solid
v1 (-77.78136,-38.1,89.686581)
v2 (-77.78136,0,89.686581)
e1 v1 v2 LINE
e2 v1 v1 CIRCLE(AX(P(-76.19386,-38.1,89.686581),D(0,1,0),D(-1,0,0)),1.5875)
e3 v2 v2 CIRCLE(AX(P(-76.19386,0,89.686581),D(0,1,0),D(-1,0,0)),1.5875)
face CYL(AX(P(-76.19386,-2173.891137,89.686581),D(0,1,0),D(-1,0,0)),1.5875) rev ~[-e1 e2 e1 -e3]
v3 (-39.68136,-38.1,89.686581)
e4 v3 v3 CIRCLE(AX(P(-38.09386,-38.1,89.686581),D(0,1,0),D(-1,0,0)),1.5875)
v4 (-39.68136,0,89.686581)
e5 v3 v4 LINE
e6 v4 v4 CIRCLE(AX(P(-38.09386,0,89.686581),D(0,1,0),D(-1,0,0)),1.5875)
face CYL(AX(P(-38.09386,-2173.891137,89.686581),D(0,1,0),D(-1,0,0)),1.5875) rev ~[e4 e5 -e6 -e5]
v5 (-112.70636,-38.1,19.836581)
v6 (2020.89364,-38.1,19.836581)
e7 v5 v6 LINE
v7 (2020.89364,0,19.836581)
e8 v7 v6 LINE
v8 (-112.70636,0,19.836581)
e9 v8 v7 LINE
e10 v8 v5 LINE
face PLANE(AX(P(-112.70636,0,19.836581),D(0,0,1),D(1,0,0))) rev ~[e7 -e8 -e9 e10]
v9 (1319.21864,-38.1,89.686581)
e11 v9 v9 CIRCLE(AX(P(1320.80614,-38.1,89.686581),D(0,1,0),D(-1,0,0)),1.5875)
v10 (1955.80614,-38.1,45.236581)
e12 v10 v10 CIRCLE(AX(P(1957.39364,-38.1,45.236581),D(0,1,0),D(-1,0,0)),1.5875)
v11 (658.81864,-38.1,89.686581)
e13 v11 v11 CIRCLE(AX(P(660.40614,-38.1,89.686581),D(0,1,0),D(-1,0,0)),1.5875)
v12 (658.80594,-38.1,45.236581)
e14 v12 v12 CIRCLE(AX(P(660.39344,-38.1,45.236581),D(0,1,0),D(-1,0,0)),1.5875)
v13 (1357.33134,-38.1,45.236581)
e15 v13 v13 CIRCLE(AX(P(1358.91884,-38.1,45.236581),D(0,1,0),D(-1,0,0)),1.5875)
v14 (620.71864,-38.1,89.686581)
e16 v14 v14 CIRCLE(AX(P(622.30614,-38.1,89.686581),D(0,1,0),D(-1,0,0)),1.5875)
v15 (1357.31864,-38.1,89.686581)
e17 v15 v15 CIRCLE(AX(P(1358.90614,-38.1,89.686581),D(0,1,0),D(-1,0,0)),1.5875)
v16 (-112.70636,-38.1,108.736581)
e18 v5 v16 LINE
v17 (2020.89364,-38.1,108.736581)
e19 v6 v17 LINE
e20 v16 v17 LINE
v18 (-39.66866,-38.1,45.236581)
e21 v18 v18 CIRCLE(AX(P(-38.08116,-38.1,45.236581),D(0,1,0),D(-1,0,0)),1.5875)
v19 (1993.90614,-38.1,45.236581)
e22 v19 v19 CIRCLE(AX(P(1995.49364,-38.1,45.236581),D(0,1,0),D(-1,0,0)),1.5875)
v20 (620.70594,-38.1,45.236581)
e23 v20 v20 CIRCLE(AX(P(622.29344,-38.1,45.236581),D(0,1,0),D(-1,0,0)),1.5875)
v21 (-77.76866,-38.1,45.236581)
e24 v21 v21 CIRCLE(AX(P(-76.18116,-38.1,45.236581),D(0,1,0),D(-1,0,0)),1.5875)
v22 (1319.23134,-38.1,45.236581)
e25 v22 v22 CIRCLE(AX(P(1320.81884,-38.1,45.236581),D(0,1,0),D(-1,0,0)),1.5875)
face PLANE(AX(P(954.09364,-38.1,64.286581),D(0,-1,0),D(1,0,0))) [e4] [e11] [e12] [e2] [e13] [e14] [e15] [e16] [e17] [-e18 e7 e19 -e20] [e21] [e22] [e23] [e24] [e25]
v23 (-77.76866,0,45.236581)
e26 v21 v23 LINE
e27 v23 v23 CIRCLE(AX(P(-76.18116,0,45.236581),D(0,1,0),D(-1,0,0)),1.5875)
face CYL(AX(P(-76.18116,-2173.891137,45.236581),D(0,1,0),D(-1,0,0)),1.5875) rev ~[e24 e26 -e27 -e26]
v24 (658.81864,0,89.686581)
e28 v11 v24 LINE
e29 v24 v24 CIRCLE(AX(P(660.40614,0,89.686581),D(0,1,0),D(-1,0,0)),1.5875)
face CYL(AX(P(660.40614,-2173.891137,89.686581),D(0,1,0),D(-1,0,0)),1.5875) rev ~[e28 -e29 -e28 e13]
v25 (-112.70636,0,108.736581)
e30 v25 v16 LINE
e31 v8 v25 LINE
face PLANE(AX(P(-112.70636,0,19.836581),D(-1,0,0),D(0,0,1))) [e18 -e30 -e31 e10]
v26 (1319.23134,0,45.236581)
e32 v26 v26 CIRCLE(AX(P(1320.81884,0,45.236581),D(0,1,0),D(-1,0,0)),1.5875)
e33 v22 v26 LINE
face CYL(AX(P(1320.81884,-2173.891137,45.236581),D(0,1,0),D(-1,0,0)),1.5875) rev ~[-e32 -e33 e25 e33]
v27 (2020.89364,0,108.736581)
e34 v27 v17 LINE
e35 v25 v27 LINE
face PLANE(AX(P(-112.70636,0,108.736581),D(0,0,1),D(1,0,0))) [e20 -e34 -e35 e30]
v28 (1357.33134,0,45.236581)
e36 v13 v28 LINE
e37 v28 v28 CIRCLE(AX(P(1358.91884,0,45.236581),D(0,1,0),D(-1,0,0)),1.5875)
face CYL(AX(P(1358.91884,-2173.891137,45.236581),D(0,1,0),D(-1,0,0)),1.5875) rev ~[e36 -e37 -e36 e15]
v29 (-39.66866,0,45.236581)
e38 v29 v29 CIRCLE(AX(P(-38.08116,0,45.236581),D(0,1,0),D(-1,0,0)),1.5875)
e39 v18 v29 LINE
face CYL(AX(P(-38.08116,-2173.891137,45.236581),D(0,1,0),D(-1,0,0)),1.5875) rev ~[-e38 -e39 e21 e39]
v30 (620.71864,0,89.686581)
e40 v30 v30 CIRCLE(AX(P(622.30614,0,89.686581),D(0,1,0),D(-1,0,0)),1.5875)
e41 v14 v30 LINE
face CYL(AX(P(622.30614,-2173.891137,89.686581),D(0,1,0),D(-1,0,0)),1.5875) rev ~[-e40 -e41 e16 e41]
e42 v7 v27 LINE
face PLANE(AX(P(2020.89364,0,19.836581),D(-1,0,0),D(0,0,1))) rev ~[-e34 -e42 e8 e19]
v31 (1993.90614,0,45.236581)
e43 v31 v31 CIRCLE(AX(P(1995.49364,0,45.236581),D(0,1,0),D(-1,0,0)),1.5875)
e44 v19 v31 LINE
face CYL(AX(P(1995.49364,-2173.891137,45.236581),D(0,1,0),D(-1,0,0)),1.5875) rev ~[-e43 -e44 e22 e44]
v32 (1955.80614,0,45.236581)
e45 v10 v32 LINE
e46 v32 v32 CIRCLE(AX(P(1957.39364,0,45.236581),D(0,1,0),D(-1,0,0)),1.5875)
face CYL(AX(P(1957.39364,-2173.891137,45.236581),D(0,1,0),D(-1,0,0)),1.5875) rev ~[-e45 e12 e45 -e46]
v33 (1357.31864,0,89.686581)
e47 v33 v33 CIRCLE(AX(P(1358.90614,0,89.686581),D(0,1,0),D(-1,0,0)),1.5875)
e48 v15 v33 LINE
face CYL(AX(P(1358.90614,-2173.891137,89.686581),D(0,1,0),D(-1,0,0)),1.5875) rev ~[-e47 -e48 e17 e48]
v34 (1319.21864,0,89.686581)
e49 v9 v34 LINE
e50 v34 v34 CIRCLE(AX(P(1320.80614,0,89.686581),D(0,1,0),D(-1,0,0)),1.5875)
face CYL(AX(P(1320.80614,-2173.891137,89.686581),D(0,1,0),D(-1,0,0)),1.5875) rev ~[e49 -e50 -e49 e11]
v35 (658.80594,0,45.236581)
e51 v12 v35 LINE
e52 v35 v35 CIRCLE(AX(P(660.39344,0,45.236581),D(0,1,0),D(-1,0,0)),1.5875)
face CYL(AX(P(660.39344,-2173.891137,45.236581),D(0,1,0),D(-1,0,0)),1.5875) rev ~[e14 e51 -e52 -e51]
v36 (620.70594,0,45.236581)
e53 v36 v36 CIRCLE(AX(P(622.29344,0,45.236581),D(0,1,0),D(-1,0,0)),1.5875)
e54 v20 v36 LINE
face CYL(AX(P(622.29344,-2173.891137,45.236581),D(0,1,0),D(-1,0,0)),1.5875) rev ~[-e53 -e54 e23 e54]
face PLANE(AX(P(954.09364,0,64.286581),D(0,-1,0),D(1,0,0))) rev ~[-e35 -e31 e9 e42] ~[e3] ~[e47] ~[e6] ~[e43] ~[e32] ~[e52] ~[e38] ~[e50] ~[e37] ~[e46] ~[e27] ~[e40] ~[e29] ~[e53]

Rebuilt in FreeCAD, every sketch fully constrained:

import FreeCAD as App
import Part
import Sketcher
from FreeCAD import Vector
Q = App.Units.Quantity


def add_polygon(sketch, points):
    """Adds a closed chain of lines whose ends are joined by coincident constraints."""
    first, n = sketch.GeometryCount, len(points)
    for a, b in zip(points, points[1:] + points[:1]):
        sketch.addGeometry(Part.LineSegment(App.Vector(*a, 0), App.Vector(*b, 0)), False)
    for i in range(n):
        sketch.addConstraint(Sketcher.Constraint("Coincident", first + i, 2, first + (i + 1) % n, 1))

doc = App.newDocument("Part")
body = doc.addObject("PartDesign::Body", "Body")

# Sketch on XZ plane
sketch1 = body.newObject("Sketcher::SketchObject", "Sketch")
sketch1.AttachmentSupport = (doc.getObject("XZ_Plane"), [""])
sketch1.MapMode = "FlatFace"
add_polygon(sketch1, [(-113, 109), (-113, 20), (2021, 20), (2021, 109)])  # lines 0-3
sketch1.addConstraint(Sketcher.Constraint("Vertical", 0))
sketch1.addConstraint(Sketcher.Constraint("Horizontal", 1))
sketch1.addConstraint(Sketcher.Constraint("Vertical", 2))
sketch1.addConstraint(Sketcher.Constraint("Horizontal", 3))
sketch1.addConstraint(Sketcher.Constraint("DistanceX", 1, 1, 1, 2, Q("84 in")))
sketch1.addConstraint(Sketcher.Constraint("DistanceY", 0, 2, 0, 1, Q("3.5 in")))
sketch1.addConstraint(Sketcher.Constraint("DistanceX", 0, 2, -1, 1, Q("112.70636 mm")))
sketch1.addConstraint(Sketcher.Constraint("DistanceY", -1, 1, 0, 2, Q("19.836581 mm")))
pad1 = body.newObject("PartDesign::Pad", "Pad")
pad1.Profile = sketch1
pad1.Length = Q("1.5 in")

# Sketch on XZ plane
sketch2 = body.newObject("Sketcher::SketchObject", "Sketch001")
sketch2.AttachmentSupport = (doc.getObject("XZ_Plane"), [""])
sketch2.MapMode = "FlatFace"
sketch2.AttachmentOffset = App.Placement(Vector(0, 0, 1.5 * 25.4), App.Rotation())
sketch2.addGeometry(Part.Circle(Vector(1995.5, 45.2, 0), Vector(0, 0, 1), 1.6), False)
sketch2.addGeometry(Part.Circle(Vector(1957.4, 45.2, 0), Vector(0, 0, 1), 1.6), False)
sketch2.addGeometry(Part.Circle(Vector(1358.9, 89.7, 0), Vector(0, 0, 1), 1.6), False)
sketch2.addGeometry(Part.Circle(Vector(1358.9, 45.2, 0), Vector(0, 0, 1), 1.6), False)
sketch2.addGeometry(Part.Circle(Vector(1320.8, 45.2, 0), Vector(0, 0, 1), 1.6), False)
sketch2.addGeometry(Part.Circle(Vector(1320.8, 89.7, 0), Vector(0, 0, 1), 1.6), False)
sketch2.addGeometry(Part.Circle(Vector(660.4, 45.2, 0), Vector(0, 0, 1), 1.6), False)
sketch2.addGeometry(Part.Circle(Vector(622.3, 45.2, 0), Vector(0, 0, 1), 1.6), False)
sketch2.addGeometry(Part.Circle(Vector(622.3, 89.7, 0), Vector(0, 0, 1), 1.6), False)
sketch2.addGeometry(Part.Circle(Vector(660.4, 89.7, 0), Vector(0, 0, 1), 1.6), False)
sketch2.addGeometry(Part.Circle(Vector(-76.2, 45.2, 0), Vector(0, 0, 1), 1.6), False)
sketch2.addGeometry(Part.Circle(Vector(-38.1, 45.2, 0), Vector(0, 0, 1), 1.6), False)
sketch2.addGeometry(Part.Circle(Vector(-38.1, 89.7, 0), Vector(0, 0, 1), 1.6), False)
sketch2.addGeometry(Part.Circle(Vector(-76.2, 89.7, 0), Vector(0, 0, 1), 1.6), False)
sketch2.addConstraint(Sketcher.Constraint("Equal", 0, 1))
sketch2.addConstraint(Sketcher.Constraint("Equal", 1, 2))
sketch2.addConstraint(Sketcher.Constraint("Equal", 2, 3))
sketch2.addConstraint(Sketcher.Constraint("Equal", 3, 4))
sketch2.addConstraint(Sketcher.Constraint("Equal", 4, 5))
sketch2.addConstraint(Sketcher.Constraint("Equal", 5, 6))
sketch2.addConstraint(Sketcher.Constraint("Equal", 6, 7))
sketch2.addConstraint(Sketcher.Constraint("Equal", 7, 8))
sketch2.addConstraint(Sketcher.Constraint("Equal", 8, 9))
sketch2.addConstraint(Sketcher.Constraint("Equal", 9, 10))
sketch2.addConstraint(Sketcher.Constraint("Equal", 10, 11))
sketch2.addConstraint(Sketcher.Constraint("Equal", 11, 12))
sketch2.addConstraint(Sketcher.Constraint("Equal", 12, 13))
sketch2.addConstraint(Sketcher.Constraint("Horizontal", 0, 3, 1, 3))
sketch2.addConstraint(Sketcher.Constraint("Horizontal", 1, 3, 3, 3))
sketch2.addConstraint(Sketcher.Constraint("Horizontal", 3, 3, 4, 3))
sketch2.addConstraint(Sketcher.Constraint("Horizontal", 2, 3, 5, 3))
sketch2.addConstraint(Sketcher.Constraint("Horizontal", 4, 3, 6, 3))
sketch2.addConstraint(Sketcher.Constraint("Horizontal", 6, 3, 7, 3))
sketch2.addConstraint(Sketcher.Constraint("Horizontal", 5, 3, 8, 3))
sketch2.addConstraint(Sketcher.Constraint("Horizontal", 8, 3, 9, 3))
sketch2.addConstraint(Sketcher.Constraint("Horizontal", 7, 3, 10, 3))
sketch2.addConstraint(Sketcher.Constraint("Horizontal", 10, 3, 11, 3))
sketch2.addConstraint(Sketcher.Constraint("Horizontal", 9, 3, 12, 3))
sketch2.addConstraint(Sketcher.Constraint("Horizontal", 12, 3, 13, 3))
sketch2.addConstraint(Sketcher.Constraint("Diameter", 0, Q("0.125 in")))
sketch2.addConstraint(Sketcher.Constraint("DistanceX", 8, 3, 2, 3, Q("29 in")))
sketch2.addConstraint(Sketcher.Constraint("DistanceX", 9, 3, 5, 3, Q("26 in")))
sketch2.addConstraint(Sketcher.Constraint("DistanceX", 10, 3, 4, 3, Q("55 in")))
sketch2.addConstraint(Sketcher.Constraint("DistanceX", 12, 3, 8, 3, Q("26 in")))
sketch2.addConstraint(Sketcher.Constraint("DistanceX", 1, 3, 0, 3, Q("1.5 in")))
sketch2.addConstraint(Sketcher.Constraint("DistanceX", 4, 3, 3, 3, Q("1.5 in")))
sketch2.addConstraint(Sketcher.Constraint("DistanceX", 5, 3, 2, 3, Q("1.5 in")))
sketch2.addConstraint(Sketcher.Constraint("DistanceX", 7, 3, 6, 3, Q("1.5 in")))
sketch2.addConstraint(Sketcher.Constraint("DistanceX", 10, 3, 11, 3, Q("1.5 in")))
sketch2.addConstraint(Sketcher.Constraint("DistanceX", 13, 3, 12, 3, Q("1.5 in")))
sketch2.addConstraint(Sketcher.Constraint("DistanceY", 1, 3, 2, 3, Q("1.75 in")))
sketch2.addConstraint(Sketcher.Constraint("DistanceX", 2, 3, 1, 3, Q("23.5625 in")))
sketch2.addConstraint(Sketcher.Constraint("DistanceX", 3, 3, 1, 3, Q("23.562 in")))
sketch2.addConstraint(Sketcher.Constraint("DistanceX", 6, 3, 4, 3, Q("26.001 in")))
sketch2.addConstraint(Sketcher.Constraint("DistanceX", -1, 1, 0, 3, Q("1995.49364 mm")))
sketch2.addConstraint(Sketcher.Constraint("DistanceY", -1, 1, 0, 3, Q("45.236581 mm")))
doc.recompute()
hole = body.newObject("PartDesign::Hole", "Hole")
hole.Profile = sketch2
hole.ThreadType = "None"
hole.Diameter = Q("0.125 in")
hole.DepthType = "ThroughAll"

doc.recompute()
